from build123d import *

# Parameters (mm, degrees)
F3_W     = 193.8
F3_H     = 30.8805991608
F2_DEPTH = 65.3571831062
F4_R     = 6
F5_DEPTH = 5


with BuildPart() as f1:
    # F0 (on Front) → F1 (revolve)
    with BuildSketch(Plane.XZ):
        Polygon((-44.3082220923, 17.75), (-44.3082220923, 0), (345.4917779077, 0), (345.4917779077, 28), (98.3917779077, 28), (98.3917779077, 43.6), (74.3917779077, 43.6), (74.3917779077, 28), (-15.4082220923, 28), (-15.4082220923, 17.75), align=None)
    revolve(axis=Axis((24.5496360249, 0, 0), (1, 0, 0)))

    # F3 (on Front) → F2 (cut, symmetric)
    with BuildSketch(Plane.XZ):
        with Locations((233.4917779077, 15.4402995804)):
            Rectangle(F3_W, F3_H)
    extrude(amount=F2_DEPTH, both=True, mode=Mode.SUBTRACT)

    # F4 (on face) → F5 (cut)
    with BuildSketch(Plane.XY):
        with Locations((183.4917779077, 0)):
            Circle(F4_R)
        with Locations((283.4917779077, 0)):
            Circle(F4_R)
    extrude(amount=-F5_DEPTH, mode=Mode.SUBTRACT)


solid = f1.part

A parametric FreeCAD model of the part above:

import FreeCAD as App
import Part
import Sketcher
Q = App.Units.Quantity

doc = App.newDocument("Part")
params = doc.addObject("Spreadsheet::Sheet", "Params")
for row, (alias, value) in enumerate([
    ("sketch1_width", "24 mm"),
    ("sketch1_height", "28 mm"),
    ("sketch1_width2", "389.8 mm"),
    ("sketch1_width3", "247.1 mm"),
    ("sketch1_width4", "89.8 mm"),
    ("revolution_angle", "360 deg"),
    ("sketch2_width", "193.8 mm"),
    ("pocket1_length", "130.714366 mm"),
    ("sketch3_diameter", "12 mm"),
    ("pocket2_length", "5 mm"),
], start=1):
    params.set(f"A{row}", alias)
    params.set(f"B{row}", "=" + value)
    params.setAlias(f"B{row}", alias)

body = doc.addObject("PartDesign::Body", "Body")

# Sketch on XZ plane
sketch1 = body.newObject("Sketcher::SketchObject", "Sketch")
sketch1.AttachmentSupport = (doc.getObject("XZ_Plane"), [""])
sketch1.MapMode = "FlatFace"
sketch1.addGeometry(Part.LineSegment(App.Vector(-44, 18, 0), App.Vector(-44, 0, 0)), False)
sketch1.addGeometry(Part.LineSegment(App.Vector(-44, 0, 0), App.Vector(345, 0, 0)), False)
sketch1.addGeometry(Part.LineSegment(App.Vector(345, 0, 0), App.Vector(345, 28, 0)), False)
sketch1.addGeometry(Part.LineSegment(App.Vector(345, 28, 0), App.Vector(98, 28, 0)), False)
sketch1.addGeometry(Part.LineSegment(App.Vector(98, 28, 0), App.Vector(98, 44, 0)), False)
sketch1.addGeometry(Part.LineSegment(App.Vector(98, 44, 0), App.Vector(74, 44, 0)), False)
sketch1.addGeometry(Part.LineSegment(App.Vector(74, 44, 0), App.Vector(74, 28, 0)), False)
sketch1.addGeometry(Part.LineSegment(App.Vector(74, 28, 0), App.Vector(-15, 28, 0)), False)
sketch1.addGeometry(Part.LineSegment(App.Vector(-15, 28, 0), App.Vector(-15, 18, 0)), False)
sketch1.addGeometry(Part.LineSegment(App.Vector(-15, 18, 0), App.Vector(-44, 18, 0)), False)
sketch1.addConstraint(Sketcher.Constraint("Coincident", 0, 2, 1, 1))
sketch1.addConstraint(Sketcher.Constraint("Coincident", 1, 2, 2, 1))
sketch1.addConstraint(Sketcher.Constraint("Coincident", 2, 2, 3, 1))
sketch1.addConstraint(Sketcher.Constraint("Coincident", 3, 2, 4, 1))
sketch1.addConstraint(Sketcher.Constraint("Coincident", 4, 2, 5, 1))
sketch1.addConstraint(Sketcher.Constraint("Coincident", 5, 2, 6, 1))
sketch1.addConstraint(Sketcher.Constraint("Coincident", 6, 2, 7, 1))
sketch1.addConstraint(Sketcher.Constraint("Coincident", 7, 2, 8, 1))
sketch1.addConstraint(Sketcher.Constraint("Coincident", 8, 2, 9, 1))
sketch1.addConstraint(Sketcher.Constraint("Coincident", 9, 2, 0, 1))
sketch1.addConstraint(Sketcher.Constraint("Vertical", 0))
sketch1.addConstraint(Sketcher.Constraint("Horizontal", 1))
sketch1.addConstraint(Sketcher.Constraint("Vertical", 2))
sketch1.addConstraint(Sketcher.Constraint("Horizontal", 3))
sketch1.addConstraint(Sketcher.Constraint("Vertical", 4))
sketch1.addConstraint(Sketcher.Constraint("Horizontal", 5))
sketch1.addConstraint(Sketcher.Constraint("Vertical", 6))
sketch1.addConstraint(Sketcher.Constraint("Horizontal", 7))
sketch1.addConstraint(Sketcher.Constraint("Vertical", 8))
sketch1.addConstraint(Sketcher.Constraint("Horizontal", 9))
sketch1.addConstraint(Sketcher.Constraint("PointOnObject", 0, 2, -1))
sketch1.addConstraint(Sketcher.Constraint("Horizontal", 3, 2, 6, 2))
sketch1.addConstraint(Sketcher.Constraint("DistanceX", 5, 2, 5, 1, Q("24 mm")))
sketch1.addConstraint(Sketcher.Constraint("DistanceY", 2, 1, 2, 2, Q("28 mm")))
sketch1.addConstraint(Sketcher.Constraint("DistanceX", 1, 1, 1, 2, Q("389.8 mm")))
sketch1.addConstraint(Sketcher.Constraint("DistanceX", 3, 2, 3, 1, Q("247.1 mm")))
sketch1.addConstraint(Sketcher.Constraint("DistanceX", 7, 2, 7, 1, Q("89.8 mm")))
sketch1.addConstraint(Sketcher.Constraint("DistanceY", 4, 1, 4, 2, Q("15.6 mm")))
sketch1.addConstraint(Sketcher.Constraint("DistanceY", 0, 2, 0, 1, Q("17.75 mm")))
sketch1.addConstraint(Sketcher.Constraint("DistanceX", 0, 2, -1, 1, Q("44.308222 mm")))
sketch1.setExpression("Constraints[22]", "Params.sketch1_width")
sketch1.setExpression("Constraints[23]", "Params.sketch1_height")
sketch1.setExpression("Constraints[24]", "Params.sketch1_width2")
sketch1.setExpression("Constraints[25]", "Params.sketch1_width3")
sketch1.setExpression("Constraints[26]", "Params.sketch1_width4")
revolution = body.newObject("PartDesign::Revolution", "Revolution")
revolution.Profile = sketch1
revolution.ReferenceAxis = (sketch1, ["H_Axis"])
revolution.setExpression("Angle", "Params.revolution_angle")

# Sketch on XZ plane
sketch2 = body.newObject("Sketcher::SketchObject", "Sketch001")
sketch2.AttachmentSupport = (doc.getObject("XZ_Plane"), [""])
sketch2.MapMode = "FlatFace"
sketch2.addGeometry(Part.LineSegment(App.Vector(137, 31, 0), App.Vector(137, 0, 0)), False)
sketch2.addGeometry(Part.LineSegment(App.Vector(137, 0, 0), App.Vector(330, 0, 0)), False)
sketch2.addGeometry(Part.LineSegment(App.Vector(330, 0, 0), App.Vector(330, 31, 0)), False)
sketch2.addGeometry(Part.LineSegment(App.Vector(330, 31, 0), App.Vector(137, 31, 0)), False)
sketch2.addConstraint(Sketcher.Constraint("Coincident", 0, 2, 1, 1))
sketch2.addConstraint(Sketcher.Constraint("Coincident", 1, 2, 2, 1))
sketch2.addConstraint(Sketcher.Constraint("Coincident", 2, 2, 3, 1))
sketch2.addConstraint(Sketcher.Constraint("Coincident", 3, 2, 0, 1))
sketch2.addConstraint(Sketcher.Constraint("Vertical", 0))
sketch2.addConstraint(Sketcher.Constraint("Horizontal", 1))
sketch2.addConstraint(Sketcher.Constraint("Vertical", 2))
sketch2.addConstraint(Sketcher.Constraint("Horizontal", 3))
sketch2.addConstraint(Sketcher.Constraint("PointOnObject", 0, 2, -1))
sketch2.addConstraint(Sketcher.Constraint("DistanceX", 1, 1, 1, 2, Q("193.8 mm")))
sketch2.addConstraint(Sketcher.Constraint("DistanceY", 0, 2, 0, 1, Q("30.880599 mm")))
sketch2.addConstraint(Sketcher.Constraint("DistanceX", -1, 1, 0, 2, Q("136.591778 mm")))
sketch2.setExpression("Constraints[9]", "Params.sketch2_width")
pocket1 = body.newObject("PartDesign::Pocket", "Pocket")
pocket1.Profile = sketch2
pocket1.setExpression("Length", "Params.pocket1_length")
pocket1.Midplane = True

# Sketch on XY plane
sketch3 = body.newObject("Sketcher::SketchObject", "Sketch002")
sketch3.AttachmentSupport = (doc.getObject("XY_Plane"), [""])
sketch3.MapMode = "FlatFace"
sketch3.addGeometry(Part.Circle(App.Vector(183, 0, 0), App.Vector(0, 0, 1), 6), False)
sketch3.addGeometry(Part.Circle(App.Vector(283, 0, 0), App.Vector(0, 0, 1), 6), False)
sketch3.addConstraint(Sketcher.Constraint("Equal", 0, 1))
sketch3.addConstraint(Sketcher.Constraint("PointOnObject", 0, 3, -1))
sketch3.addConstraint(Sketcher.Constraint("PointOnObject", 1, 3, -1))
sketch3.addConstraint(Sketcher.Constraint("Diameter", 0, Q("12 mm")))
sketch3.addConstraint(Sketcher.Constraint("DistanceX", 0, 3, 1, 3, Q("100 mm")))
sketch3.addConstraint(Sketcher.Constraint("DistanceX", -1, 1, 0, 3, Q("183.491778 mm")))
sketch3.setExpression("Constraints[3]", "Params.sketch3_diameter")
pocket2 = body.newObject("PartDesign::Pocket", "Pocket001")
pocket2.Profile = sketch3
pocket2.setExpression("Length", "Params.pocket2_length")

doc.recompute()
